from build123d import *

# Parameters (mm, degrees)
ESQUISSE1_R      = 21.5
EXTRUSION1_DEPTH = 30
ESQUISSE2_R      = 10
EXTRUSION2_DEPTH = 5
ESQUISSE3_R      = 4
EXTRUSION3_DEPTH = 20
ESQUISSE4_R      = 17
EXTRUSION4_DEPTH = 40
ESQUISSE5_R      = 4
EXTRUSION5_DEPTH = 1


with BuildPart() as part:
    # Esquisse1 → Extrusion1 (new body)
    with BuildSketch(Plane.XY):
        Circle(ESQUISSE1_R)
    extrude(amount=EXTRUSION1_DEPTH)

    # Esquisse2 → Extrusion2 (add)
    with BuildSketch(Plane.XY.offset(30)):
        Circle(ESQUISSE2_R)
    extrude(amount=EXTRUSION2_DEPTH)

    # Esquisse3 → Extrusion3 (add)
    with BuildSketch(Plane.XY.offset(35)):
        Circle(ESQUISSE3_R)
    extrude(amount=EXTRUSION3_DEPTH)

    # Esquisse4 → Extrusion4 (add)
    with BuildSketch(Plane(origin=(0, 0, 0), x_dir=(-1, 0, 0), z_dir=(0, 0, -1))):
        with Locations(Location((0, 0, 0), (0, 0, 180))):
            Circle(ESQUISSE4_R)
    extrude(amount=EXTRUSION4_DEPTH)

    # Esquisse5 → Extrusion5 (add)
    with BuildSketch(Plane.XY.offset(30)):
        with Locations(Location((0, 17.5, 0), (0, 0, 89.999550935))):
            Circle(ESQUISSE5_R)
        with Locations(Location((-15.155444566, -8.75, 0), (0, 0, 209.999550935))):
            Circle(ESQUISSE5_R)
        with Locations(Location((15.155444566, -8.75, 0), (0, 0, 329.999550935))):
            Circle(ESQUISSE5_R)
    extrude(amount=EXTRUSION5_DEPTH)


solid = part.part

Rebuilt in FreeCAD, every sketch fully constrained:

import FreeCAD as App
import Part
import Sketcher

doc = App.newDocument("Part")
body = doc.addObject("PartDesign::Body", "Body")

sketch1 = body.newObject("Sketcher::SketchObject", "Sketch")
sketch1.AttachmentSupport = (doc.getObject("XY_Plane"), [""])
sketch1.MapMode = "FlatFace"
sketch1.addGeometry(Part.Circle(App.Vector(0, 0, 0), App.Vector(0, 0, 1), 22), False)
sketch1.addConstraint(Sketcher.Constraint("Coincident", 0, 3, -1, 1))
sketch1.addConstraint(Sketcher.Constraint("Diameter", 0, 43.0))
pad1 = body.newObject("PartDesign::Pad", "Pad")
pad1.Profile = sketch1
pad1.Length = 30

sketch2 = body.newObject("Sketcher::SketchObject", "Sketch001")
sketch2.AttachmentSupport = (doc.getObject("XY_Plane"), [""])
sketch2.MapMode = "FlatFace"
sketch2.AttachmentOffset = App.Placement(App.Vector(0, 0, 30), App.Rotation())
sketch2.addGeometry(Part.Circle(App.Vector(0, 0, 0), App.Vector(0, 0, 1), 10), False)
sketch2.addConstraint(Sketcher.Constraint("Coincident", 0, 3, -1, 1))
sketch2.addConstraint(Sketcher.Constraint("Diameter", 0, 20.0))
pad2 = body.newObject("PartDesign::Pad", "Pad001")
pad2.Profile = sketch2
pad2.Length = 5

sketch3 = body.newObject("Sketcher::SketchObject", "Sketch002")
sketch3.AttachmentSupport = (doc.getObject("XY_Plane"), [""])
sketch3.MapMode = "FlatFace"
sketch3.AttachmentOffset = App.Placement(App.Vector(0, 0, 35), App.Rotation())
sketch3.addGeometry(Part.Circle(App.Vector(0, 0, 0), App.Vector(0, 0, 1), 4), False)
sketch3.addConstraint(Sketcher.Constraint("Coincident", 0, 3, -1, 1))
sketch3.addConstraint(Sketcher.Constraint("Diameter", 0, 8.0))
pad3 = body.newObject("PartDesign::Pad", "Pad002")
pad3.Profile = sketch3
pad3.Length = 20

sketch4 = body.newObject("Sketcher::SketchObject", "Sketch003")
sketch4.AttachmentSupport = (doc.getObject("XY_Plane"), [""])
sketch4.MapMode = "FlatFace"
sketch4.addGeometry(Part.Circle(App.Vector(0, 0, 0), App.Vector(0, 0, 1), 17), False)
sketch4.addConstraint(Sketcher.Constraint("Coincident", 0, 3, -1, 1))
sketch4.addConstraint(Sketcher.Constraint("Diameter", 0, 34.0))
pad4 = body.newObject("PartDesign::Pad", "Pad003")
pad4.Profile = sketch4
pad4.Length = 40
pad4.Reversed = True

sketch5 = body.newObject("Sketcher::SketchObject", "Sketch004")
sketch5.AttachmentSupport = (doc.getObject("XY_Plane"), [""])
sketch5.MapMode = "FlatFace"
sketch5.AttachmentOffset = App.Placement(App.Vector(0, 0, 30), App.Rotation())
sketch5.addGeometry(Part.Circle(App.Vector(0, 17.5, 0), App.Vector(0, 0, 1), 4), False)
sketch5.addGeometry(Part.Circle(App.Vector(-15.2, -8.8, 0), App.Vector(0, 0, 1), 4), False)
sketch5.addGeometry(Part.Circle(App.Vector(15.2, -8.8, 0), App.Vector(0, 0, 1), 4), False)
sketch5.addConstraint(Sketcher.Constraint("Equal", 0, 1))
sketch5.addConstraint(Sketcher.Constraint("Equal", 1, 2))
sketch5.addConstraint(Sketcher.Constraint("Symmetric", 1, 3, 2, 3, -2))
sketch5.addConstraint(Sketcher.Constraint("PointOnObject", 0, 3, -2))
sketch5.addConstraint(Sketcher.Constraint("Diameter", 0, 8.0))
sketch5.addConstraint(Sketcher.Constraint("DistanceY", -1, 1, 0, 3, 17.5))
sketch5.addConstraint(Sketcher.Constraint("DistanceY", 1, 3, -1, 1, 8.75))
sketch5.addConstraint(Sketcher.Constraint("DistanceX", 1, 3, 2, 3, 30.310889))
pad5 = body.newObject("PartDesign::Pad", "Pad004")
pad5.Profile = sketch5
pad5.Length = 1

doc.recompute()
